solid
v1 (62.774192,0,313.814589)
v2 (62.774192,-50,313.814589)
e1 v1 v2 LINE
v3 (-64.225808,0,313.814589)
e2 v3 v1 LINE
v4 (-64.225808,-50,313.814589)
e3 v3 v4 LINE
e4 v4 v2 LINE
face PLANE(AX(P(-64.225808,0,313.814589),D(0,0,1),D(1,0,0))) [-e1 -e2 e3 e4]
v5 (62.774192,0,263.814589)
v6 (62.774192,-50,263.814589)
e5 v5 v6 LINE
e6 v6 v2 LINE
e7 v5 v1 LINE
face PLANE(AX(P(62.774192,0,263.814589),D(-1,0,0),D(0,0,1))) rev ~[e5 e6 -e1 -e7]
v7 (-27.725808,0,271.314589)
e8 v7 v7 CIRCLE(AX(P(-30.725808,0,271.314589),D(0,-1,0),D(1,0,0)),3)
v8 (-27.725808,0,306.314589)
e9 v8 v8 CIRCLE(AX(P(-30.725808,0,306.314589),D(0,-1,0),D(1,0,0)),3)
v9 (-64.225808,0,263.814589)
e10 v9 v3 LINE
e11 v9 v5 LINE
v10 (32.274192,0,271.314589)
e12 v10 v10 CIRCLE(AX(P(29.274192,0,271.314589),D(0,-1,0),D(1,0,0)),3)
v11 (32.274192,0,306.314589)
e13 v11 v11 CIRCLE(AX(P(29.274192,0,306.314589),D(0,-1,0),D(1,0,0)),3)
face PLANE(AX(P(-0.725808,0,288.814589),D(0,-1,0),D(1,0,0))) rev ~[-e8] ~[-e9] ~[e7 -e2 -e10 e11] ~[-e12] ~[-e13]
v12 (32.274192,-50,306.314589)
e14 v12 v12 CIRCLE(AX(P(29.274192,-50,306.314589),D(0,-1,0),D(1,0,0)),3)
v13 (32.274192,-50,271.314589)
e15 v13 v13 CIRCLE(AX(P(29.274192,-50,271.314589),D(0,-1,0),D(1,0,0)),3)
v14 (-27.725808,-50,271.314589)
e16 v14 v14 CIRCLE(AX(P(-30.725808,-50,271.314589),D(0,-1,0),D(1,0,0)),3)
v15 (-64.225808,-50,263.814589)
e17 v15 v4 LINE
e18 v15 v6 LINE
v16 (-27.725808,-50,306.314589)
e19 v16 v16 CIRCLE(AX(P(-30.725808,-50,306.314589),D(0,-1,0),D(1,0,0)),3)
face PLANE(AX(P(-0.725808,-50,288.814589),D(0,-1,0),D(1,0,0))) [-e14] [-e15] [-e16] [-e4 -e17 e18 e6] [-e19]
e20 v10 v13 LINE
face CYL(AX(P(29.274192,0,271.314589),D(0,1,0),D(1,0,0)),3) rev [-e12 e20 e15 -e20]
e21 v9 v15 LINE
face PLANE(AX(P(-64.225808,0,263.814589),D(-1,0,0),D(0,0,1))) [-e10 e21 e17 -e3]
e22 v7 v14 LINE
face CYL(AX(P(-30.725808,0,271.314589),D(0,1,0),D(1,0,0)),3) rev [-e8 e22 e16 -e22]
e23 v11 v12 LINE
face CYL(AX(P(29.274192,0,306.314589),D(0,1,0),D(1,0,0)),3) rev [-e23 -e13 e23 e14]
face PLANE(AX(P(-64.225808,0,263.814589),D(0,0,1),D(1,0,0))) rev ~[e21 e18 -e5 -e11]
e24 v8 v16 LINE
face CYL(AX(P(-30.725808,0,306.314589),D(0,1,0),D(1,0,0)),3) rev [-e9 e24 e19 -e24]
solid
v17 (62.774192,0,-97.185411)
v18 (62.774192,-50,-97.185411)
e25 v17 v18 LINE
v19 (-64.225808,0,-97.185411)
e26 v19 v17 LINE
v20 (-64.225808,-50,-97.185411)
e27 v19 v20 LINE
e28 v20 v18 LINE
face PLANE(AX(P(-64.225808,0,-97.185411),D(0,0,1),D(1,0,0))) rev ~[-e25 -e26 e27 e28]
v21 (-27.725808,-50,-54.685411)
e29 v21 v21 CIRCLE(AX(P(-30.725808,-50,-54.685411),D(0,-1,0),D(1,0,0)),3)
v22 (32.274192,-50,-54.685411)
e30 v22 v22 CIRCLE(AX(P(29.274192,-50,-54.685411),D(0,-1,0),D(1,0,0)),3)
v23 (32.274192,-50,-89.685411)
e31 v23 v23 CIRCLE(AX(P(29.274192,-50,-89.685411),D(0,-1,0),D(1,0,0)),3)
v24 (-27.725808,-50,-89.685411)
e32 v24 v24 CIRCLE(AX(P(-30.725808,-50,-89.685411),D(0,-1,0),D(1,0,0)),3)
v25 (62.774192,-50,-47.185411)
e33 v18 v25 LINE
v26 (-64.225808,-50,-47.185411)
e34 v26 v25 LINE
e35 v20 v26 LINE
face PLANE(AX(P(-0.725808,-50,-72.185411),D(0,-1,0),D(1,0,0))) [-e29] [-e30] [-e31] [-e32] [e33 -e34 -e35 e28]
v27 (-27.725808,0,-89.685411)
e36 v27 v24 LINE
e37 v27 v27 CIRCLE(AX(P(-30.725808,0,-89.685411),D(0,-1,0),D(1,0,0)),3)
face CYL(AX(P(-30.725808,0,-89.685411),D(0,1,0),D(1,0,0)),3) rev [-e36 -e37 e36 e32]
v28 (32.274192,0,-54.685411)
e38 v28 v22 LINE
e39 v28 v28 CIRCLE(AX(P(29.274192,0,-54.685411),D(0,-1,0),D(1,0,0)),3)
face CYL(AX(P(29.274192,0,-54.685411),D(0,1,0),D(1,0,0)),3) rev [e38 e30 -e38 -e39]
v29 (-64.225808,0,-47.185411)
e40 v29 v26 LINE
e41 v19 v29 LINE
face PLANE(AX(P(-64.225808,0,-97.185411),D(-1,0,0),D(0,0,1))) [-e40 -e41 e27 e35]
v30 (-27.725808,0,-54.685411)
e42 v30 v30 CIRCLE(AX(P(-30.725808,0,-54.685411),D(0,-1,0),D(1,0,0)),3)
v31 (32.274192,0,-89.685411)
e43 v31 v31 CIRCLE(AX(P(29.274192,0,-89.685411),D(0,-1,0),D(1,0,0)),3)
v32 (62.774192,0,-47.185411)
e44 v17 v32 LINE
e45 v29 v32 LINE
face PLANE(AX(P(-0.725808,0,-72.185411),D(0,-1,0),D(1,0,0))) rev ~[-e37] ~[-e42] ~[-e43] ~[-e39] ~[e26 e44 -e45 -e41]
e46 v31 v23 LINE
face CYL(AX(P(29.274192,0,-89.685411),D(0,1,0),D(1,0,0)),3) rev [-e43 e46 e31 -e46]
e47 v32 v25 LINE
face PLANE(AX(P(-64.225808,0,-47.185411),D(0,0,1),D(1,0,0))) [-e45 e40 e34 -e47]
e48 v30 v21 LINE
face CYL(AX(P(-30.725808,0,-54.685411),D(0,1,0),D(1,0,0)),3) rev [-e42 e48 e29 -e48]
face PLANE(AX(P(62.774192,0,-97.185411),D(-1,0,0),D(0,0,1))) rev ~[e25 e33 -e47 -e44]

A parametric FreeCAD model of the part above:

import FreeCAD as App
import Part
import Sketcher
from FreeCAD import Vector
Q = App.Units.Quantity


def add_polygon(sketch, points):
    """Adds a closed chain of lines whose ends are joined by coincident constraints."""
    first, n = sketch.GeometryCount, len(points)
    for a, b in zip(points, points[1:] + points[:1]):
        sketch.addGeometry(Part.LineSegment(App.Vector(*a, 0), App.Vector(*b, 0)), False)
    for i in range(n):
        sketch.addConstraint(Sketcher.Constraint("Coincident", first + i, 2, first + (i + 1) % n, 1))

doc = App.newDocument("Part")
body = doc.addObject("PartDesign::Body", "Body")
body.AllowCompound = True

sketch1 = doc.addObject("Sketcher::SketchObject", "Sketch")
body.addObject(sketch1)
sketch1.AttachmentSupport = (doc.XZ_Plane, [""])
sketch1.MapMode = "FlatFace"
add_polygon(sketch1, [(-64.2, -47.2), (-64.2, -97.2), (62.8, -97.2), (62.8, -47.2)])
sketch1.addGeometry(Part.Circle(Vector(-30.7, -89.7, 0), Vector(0, 0, 1), 3), False)
sketch1.addGeometry(Part.Circle(Vector(29.3, -89.7, 0), Vector(0, 0, 1), 3), False)
sketch1.addGeometry(Part.Circle(Vector(-30.7, -54.7, 0), Vector(0, 0, 1), 3), False)
sketch1.addGeometry(Part.Circle(Vector(29.3, -54.7, 0), Vector(0, 0, 1), 3), False)
add_polygon(sketch1, [(-64.2, 313.8), (-64.2, 263.8), (62.8, 263.8), (62.8, 313.8)])
sketch1.addGeometry(Part.Circle(Vector(-30.7, 271.3, 0), Vector(0, 0, 1), 3), False)
sketch1.addGeometry(Part.Circle(Vector(29.3, 271.3, 0), Vector(0, 0, 1), 3), False)
sketch1.addGeometry(Part.Circle(Vector(-30.7, 306.3, 0), Vector(0, 0, 1), 3), False)
sketch1.addGeometry(Part.Circle(Vector(29.3, 306.3, 0), Vector(0, 0, 1), 3), False)
sketch1.addConstraint([
    Sketcher.Constraint("Vertical", 0),
    Sketcher.Constraint("Horizontal", 1),
    Sketcher.Constraint("Vertical", 2),
    Sketcher.Constraint("Horizontal", 3),
    Sketcher.Constraint("Vertical", 8),
    Sketcher.Constraint("Horizontal", 9),
    Sketcher.Constraint("Vertical", 10),
    Sketcher.Constraint("Horizontal", 11),
    Sketcher.Constraint("Equal", 4, 5),
    Sketcher.Constraint("Equal", 5, 6),
    Sketcher.Constraint("Equal", 6, 7),
    Sketcher.Constraint("Equal", 7, 12),
    Sketcher.Constraint("Equal", 12, 13),
    Sketcher.Constraint("Equal", 13, 14),
    Sketcher.Constraint("Equal", 14, 15),
    Sketcher.Constraint("Horizontal", 4, 3, 5, 3),
    Sketcher.Constraint("Horizontal", 6, 3, 7, 3),
    Sketcher.Constraint("Horizontal", 12, 3, 13, 3),
    Sketcher.Constraint("Horizontal", 14, 3, 15, 3),
    Sketcher.Constraint("Vertical", 4, 3, 6, 3),
    Sketcher.Constraint("Vertical", 5, 3, 7, 3),
    Sketcher.Constraint("Vertical", 6, 3, 12, 3),
    Sketcher.Constraint("Vertical", 7, 3, 13, 3),
    Sketcher.Constraint("Vertical", 12, 3, 14, 3),
    Sketcher.Constraint("Vertical", 13, 3, 15, 3),
    Sketcher.Constraint("Vertical", 3, 2, 8, 2),
    Sketcher.Constraint("Vertical", 2, 2, 9, 2),
    Sketcher.Constraint("Equal", 2, 8),
    Sketcher.Constraint("Diameter", 4, Q("6 mm")),
    Sketcher.Constraint("DistanceX", 1, 1, 1, 2, Q("127 mm")),
    Sketcher.Constraint("DistanceY", 0, 2, 0, 1, Q("50 mm")),
    Sketcher.Constraint("DistanceX", 4, 3, 5, 3, Q("60 mm")),
    Sketcher.Constraint("DistanceY", 4, 3, 6, 3, Q("35 mm")),
    Sketcher.Constraint("DistanceY", 6, 3, 12, 3, Q("326 mm")),
    Sketcher.Constraint("DistanceY", 12, 3, 14, 3, Q("35 mm")),
    Sketcher.Constraint("DistanceY", 3, 2, 8, 2, Q("311 mm")),
    Sketcher.Constraint("DistanceX", 0, 2, 4, 3, Q("33.5 mm")),
    Sketcher.Constraint("DistanceY", 0, 2, 4, 3, Q("7.5 mm")),
    Sketcher.Constraint("DistanceX", 4, 3, -1, 1, Q("30.725808 mm")),
    Sketcher.Constraint("DistanceY", 4, 3, -1, 1, Q("89.685411 mm")),
])
pad1 = doc.addObject("PartDesign::Pad", "Pad")
body.addObject(pad1)
pad1.Profile = sketch1
pad1.Length = 50

doc.recompute()
